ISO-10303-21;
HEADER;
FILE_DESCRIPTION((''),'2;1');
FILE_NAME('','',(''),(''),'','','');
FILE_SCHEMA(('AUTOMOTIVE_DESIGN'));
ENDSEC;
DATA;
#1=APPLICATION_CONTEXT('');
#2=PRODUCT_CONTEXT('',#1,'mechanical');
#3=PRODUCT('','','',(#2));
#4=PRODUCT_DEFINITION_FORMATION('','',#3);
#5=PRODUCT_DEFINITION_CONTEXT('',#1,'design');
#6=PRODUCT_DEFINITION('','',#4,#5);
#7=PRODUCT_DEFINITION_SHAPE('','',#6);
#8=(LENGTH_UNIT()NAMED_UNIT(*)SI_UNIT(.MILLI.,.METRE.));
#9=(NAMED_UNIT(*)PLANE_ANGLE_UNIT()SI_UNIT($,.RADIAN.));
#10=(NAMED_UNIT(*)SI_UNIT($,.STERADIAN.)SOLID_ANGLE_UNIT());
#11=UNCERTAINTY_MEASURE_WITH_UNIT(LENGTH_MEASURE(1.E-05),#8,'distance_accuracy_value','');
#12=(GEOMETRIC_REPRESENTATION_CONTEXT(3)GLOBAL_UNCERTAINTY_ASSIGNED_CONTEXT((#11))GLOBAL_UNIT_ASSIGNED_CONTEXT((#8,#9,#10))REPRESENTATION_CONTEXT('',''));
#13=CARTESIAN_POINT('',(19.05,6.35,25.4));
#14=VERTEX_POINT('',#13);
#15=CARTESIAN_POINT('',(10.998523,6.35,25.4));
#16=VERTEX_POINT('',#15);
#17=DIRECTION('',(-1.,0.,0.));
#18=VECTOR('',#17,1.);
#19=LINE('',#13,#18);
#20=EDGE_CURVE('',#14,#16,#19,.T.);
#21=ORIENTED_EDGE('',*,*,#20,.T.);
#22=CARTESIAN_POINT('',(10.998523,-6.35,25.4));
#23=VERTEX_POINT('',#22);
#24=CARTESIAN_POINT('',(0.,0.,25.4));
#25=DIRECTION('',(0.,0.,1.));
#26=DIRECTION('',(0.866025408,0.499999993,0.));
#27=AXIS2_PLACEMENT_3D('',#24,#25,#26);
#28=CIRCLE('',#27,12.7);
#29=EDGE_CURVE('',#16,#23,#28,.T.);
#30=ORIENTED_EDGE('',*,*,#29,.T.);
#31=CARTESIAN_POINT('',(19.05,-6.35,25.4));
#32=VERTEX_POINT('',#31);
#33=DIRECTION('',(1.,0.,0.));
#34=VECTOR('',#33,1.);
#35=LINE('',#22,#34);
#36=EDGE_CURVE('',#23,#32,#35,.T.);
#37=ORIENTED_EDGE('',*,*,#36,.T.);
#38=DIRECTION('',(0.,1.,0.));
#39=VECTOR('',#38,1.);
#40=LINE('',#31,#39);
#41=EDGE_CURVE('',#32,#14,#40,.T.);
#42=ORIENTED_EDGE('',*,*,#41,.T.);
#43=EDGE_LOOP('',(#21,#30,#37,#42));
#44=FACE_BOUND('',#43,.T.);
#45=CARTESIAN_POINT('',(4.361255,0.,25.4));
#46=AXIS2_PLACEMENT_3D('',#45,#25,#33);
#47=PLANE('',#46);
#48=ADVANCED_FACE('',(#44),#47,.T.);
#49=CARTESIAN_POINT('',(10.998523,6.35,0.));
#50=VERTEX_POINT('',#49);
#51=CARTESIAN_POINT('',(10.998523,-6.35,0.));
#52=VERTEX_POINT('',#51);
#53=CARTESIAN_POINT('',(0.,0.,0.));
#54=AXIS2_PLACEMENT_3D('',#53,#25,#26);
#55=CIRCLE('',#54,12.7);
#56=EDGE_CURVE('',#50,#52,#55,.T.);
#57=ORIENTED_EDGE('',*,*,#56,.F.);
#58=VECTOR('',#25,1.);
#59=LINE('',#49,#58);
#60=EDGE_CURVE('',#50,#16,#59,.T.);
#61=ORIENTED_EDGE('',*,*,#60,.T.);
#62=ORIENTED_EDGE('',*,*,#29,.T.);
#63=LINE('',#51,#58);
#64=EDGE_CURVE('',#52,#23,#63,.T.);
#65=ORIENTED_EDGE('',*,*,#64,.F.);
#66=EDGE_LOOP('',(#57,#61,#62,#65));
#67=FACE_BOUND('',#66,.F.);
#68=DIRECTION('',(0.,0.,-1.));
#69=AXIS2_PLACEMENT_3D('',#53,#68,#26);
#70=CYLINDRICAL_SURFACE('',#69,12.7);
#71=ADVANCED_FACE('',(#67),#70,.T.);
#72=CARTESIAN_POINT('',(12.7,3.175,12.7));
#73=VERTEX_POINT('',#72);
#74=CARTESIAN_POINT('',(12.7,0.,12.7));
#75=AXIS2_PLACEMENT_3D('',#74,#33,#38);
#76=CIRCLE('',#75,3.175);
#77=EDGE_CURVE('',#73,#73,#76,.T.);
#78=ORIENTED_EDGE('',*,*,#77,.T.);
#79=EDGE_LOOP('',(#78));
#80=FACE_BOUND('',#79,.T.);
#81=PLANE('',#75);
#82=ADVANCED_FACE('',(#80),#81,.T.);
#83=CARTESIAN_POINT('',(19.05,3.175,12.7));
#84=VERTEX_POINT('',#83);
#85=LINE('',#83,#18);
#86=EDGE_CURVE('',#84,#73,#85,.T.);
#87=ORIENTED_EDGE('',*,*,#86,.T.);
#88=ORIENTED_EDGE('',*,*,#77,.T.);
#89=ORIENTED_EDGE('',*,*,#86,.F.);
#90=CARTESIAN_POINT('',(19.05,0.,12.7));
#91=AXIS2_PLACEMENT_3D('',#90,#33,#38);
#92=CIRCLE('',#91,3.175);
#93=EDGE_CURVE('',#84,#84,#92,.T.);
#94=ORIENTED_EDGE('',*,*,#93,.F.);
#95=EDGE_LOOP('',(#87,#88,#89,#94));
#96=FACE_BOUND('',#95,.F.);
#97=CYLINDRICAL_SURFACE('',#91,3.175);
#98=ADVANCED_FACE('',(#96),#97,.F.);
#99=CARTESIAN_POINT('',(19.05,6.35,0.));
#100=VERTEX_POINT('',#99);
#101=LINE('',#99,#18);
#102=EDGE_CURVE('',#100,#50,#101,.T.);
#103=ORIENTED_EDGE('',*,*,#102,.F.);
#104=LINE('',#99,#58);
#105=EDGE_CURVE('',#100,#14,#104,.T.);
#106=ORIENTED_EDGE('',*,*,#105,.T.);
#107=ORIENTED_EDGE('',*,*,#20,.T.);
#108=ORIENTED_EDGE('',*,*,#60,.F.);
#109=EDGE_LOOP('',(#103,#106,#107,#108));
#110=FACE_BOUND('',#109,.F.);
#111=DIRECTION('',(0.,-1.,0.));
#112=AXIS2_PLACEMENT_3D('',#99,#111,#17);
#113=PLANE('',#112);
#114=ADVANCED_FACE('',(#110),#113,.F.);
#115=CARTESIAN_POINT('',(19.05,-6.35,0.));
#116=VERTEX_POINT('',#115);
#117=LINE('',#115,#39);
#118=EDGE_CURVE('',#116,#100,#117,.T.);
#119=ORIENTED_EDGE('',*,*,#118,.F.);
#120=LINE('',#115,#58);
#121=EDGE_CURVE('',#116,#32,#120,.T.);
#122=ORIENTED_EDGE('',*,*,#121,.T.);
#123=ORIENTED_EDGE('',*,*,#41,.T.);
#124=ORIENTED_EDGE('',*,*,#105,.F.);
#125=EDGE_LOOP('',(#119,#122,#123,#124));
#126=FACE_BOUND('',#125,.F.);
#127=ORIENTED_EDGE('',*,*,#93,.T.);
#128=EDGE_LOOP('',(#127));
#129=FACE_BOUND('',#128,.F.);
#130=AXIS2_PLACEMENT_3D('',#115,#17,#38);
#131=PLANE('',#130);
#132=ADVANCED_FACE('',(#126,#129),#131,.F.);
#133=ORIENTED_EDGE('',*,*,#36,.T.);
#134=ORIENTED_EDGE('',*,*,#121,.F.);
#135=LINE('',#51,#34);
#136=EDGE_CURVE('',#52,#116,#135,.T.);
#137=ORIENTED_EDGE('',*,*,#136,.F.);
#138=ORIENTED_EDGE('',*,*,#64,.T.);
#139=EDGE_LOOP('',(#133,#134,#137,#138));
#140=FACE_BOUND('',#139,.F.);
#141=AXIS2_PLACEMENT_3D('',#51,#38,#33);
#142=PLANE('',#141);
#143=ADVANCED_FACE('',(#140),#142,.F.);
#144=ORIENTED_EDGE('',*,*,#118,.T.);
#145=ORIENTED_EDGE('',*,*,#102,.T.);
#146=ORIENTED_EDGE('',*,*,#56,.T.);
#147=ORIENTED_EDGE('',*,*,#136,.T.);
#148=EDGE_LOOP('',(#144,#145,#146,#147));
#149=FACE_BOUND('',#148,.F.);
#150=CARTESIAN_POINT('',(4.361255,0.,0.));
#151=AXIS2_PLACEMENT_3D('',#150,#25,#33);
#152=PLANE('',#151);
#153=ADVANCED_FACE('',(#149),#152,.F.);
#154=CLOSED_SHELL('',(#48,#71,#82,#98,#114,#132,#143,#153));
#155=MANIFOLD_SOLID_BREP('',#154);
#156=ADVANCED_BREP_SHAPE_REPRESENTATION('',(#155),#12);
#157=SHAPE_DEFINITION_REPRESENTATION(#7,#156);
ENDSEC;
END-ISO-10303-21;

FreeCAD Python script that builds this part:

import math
import FreeCAD as App
import Part
import Sketcher

V = App.Vector
Q = App.Units.Quantity

doc = App.newDocument("Part")
params = doc.addObject("Spreadsheet::Sheet", "Params")
for row, (alias, value) in enumerate([
    ("sketch1_radius", "0.5 in"),
    ("sketch1_height", "0.5 in"),
    ("pad1_length", "1 in"),
    ("sketch2_diameter", "0.25 in"),
    ("pocket1_length", "0.25 in"),
], start=1):
    params.set(f"A{row}", alias)
    params.set(f"B{row}", "=" + value)
    params.setAlias(f"B{row}", alias)

body = doc.addObject("PartDesign::Body", "Body")

sketch1 = body.newObject("Sketcher::SketchObject", "Sketch")
sketch1.AttachmentSupport = (doc.getObject("XY_Plane"), [""])
sketch1.MapMode = "FlatFace"
sketch1.addGeometry([
    Part.LineSegment(V(19.05, 6.35, 0), V(10.998523, 6.35, 0)),
    Part.ArcOfCircle(Part.Circle(V(0, 0, 0), V(0, 0, 1), 12.7), math.radians(30), math.radians(330)),
    Part.LineSegment(V(10.998523, -6.35, 0), V(19.05, -6.35, 0)),
    Part.LineSegment(V(19.05, -6.35, 0), V(19.05, 6.35, 0)),
], False)
sketch1.addConstraint([
    Sketcher.Constraint("Coincident", 0, 2, 1, 1),
    Sketcher.Constraint("Coincident", 1, 2, 2, 1),
    Sketcher.Constraint("Coincident", 2, 2, 3, 1),
    Sketcher.Constraint("Coincident", 3, 2, 0, 1),
    Sketcher.Constraint("Horizontal", 0),
    Sketcher.Constraint("Horizontal", 2),
    Sketcher.Constraint("Vertical", 3),
    Sketcher.Constraint("Coincident", 1, 3, -1, 1),
    Sketcher.Constraint("Vertical", 0, 2, 1, 2),
    Sketcher.Constraint("Radius", 1, Q("0.5 in")),
    Sketcher.Constraint("DistanceY", 3, 1, 3, 2, Q("0.5 in")),
    Sketcher.Constraint("DistanceX", -1, 1, 2, 2, Q("0.75 in")),
])
sketch1.setExpression("Constraints[9]", "Params.sketch1_radius")
sketch1.setExpression("Constraints[10]", "Params.sketch1_height")
pad1 = body.newObject("PartDesign::Pad", "Pad")
pad1.Profile = sketch1
pad1.setExpression("Length", "Params.pad1_length")

sketch2 = body.newObject("Sketcher::SketchObject", "Sketch001")
sketch2.AttachmentSupport = (doc.getObject("YZ_Plane"), [""])
sketch2.MapMode = "FlatFace"
sketch2.AttachmentOffset = App.Placement(V(0, 0, 0.75 * 25.4), App.Rotation())
sketch2.addGeometry(Part.Circle(V(0, 12.7, 0), V(0, 0, 1), 3.175), False)
sketch2.addConstraint([
    Sketcher.Constraint("PointOnObject", 0, 3, -2),
    Sketcher.Constraint("Diameter", 0, Q("0.25 in")),
    Sketcher.Constraint("DistanceY", -1, 1, 0, 3, Q("0.5 in")),
])
sketch2.setExpression("Constraints[1]", "Params.sketch2_diameter")
pocket1 = body.newObject("PartDesign::Pocket", "Pocket")
pocket1.Profile = sketch2
pocket1.setExpression("Length", "Params.pocket1_length")

doc.recompute()
